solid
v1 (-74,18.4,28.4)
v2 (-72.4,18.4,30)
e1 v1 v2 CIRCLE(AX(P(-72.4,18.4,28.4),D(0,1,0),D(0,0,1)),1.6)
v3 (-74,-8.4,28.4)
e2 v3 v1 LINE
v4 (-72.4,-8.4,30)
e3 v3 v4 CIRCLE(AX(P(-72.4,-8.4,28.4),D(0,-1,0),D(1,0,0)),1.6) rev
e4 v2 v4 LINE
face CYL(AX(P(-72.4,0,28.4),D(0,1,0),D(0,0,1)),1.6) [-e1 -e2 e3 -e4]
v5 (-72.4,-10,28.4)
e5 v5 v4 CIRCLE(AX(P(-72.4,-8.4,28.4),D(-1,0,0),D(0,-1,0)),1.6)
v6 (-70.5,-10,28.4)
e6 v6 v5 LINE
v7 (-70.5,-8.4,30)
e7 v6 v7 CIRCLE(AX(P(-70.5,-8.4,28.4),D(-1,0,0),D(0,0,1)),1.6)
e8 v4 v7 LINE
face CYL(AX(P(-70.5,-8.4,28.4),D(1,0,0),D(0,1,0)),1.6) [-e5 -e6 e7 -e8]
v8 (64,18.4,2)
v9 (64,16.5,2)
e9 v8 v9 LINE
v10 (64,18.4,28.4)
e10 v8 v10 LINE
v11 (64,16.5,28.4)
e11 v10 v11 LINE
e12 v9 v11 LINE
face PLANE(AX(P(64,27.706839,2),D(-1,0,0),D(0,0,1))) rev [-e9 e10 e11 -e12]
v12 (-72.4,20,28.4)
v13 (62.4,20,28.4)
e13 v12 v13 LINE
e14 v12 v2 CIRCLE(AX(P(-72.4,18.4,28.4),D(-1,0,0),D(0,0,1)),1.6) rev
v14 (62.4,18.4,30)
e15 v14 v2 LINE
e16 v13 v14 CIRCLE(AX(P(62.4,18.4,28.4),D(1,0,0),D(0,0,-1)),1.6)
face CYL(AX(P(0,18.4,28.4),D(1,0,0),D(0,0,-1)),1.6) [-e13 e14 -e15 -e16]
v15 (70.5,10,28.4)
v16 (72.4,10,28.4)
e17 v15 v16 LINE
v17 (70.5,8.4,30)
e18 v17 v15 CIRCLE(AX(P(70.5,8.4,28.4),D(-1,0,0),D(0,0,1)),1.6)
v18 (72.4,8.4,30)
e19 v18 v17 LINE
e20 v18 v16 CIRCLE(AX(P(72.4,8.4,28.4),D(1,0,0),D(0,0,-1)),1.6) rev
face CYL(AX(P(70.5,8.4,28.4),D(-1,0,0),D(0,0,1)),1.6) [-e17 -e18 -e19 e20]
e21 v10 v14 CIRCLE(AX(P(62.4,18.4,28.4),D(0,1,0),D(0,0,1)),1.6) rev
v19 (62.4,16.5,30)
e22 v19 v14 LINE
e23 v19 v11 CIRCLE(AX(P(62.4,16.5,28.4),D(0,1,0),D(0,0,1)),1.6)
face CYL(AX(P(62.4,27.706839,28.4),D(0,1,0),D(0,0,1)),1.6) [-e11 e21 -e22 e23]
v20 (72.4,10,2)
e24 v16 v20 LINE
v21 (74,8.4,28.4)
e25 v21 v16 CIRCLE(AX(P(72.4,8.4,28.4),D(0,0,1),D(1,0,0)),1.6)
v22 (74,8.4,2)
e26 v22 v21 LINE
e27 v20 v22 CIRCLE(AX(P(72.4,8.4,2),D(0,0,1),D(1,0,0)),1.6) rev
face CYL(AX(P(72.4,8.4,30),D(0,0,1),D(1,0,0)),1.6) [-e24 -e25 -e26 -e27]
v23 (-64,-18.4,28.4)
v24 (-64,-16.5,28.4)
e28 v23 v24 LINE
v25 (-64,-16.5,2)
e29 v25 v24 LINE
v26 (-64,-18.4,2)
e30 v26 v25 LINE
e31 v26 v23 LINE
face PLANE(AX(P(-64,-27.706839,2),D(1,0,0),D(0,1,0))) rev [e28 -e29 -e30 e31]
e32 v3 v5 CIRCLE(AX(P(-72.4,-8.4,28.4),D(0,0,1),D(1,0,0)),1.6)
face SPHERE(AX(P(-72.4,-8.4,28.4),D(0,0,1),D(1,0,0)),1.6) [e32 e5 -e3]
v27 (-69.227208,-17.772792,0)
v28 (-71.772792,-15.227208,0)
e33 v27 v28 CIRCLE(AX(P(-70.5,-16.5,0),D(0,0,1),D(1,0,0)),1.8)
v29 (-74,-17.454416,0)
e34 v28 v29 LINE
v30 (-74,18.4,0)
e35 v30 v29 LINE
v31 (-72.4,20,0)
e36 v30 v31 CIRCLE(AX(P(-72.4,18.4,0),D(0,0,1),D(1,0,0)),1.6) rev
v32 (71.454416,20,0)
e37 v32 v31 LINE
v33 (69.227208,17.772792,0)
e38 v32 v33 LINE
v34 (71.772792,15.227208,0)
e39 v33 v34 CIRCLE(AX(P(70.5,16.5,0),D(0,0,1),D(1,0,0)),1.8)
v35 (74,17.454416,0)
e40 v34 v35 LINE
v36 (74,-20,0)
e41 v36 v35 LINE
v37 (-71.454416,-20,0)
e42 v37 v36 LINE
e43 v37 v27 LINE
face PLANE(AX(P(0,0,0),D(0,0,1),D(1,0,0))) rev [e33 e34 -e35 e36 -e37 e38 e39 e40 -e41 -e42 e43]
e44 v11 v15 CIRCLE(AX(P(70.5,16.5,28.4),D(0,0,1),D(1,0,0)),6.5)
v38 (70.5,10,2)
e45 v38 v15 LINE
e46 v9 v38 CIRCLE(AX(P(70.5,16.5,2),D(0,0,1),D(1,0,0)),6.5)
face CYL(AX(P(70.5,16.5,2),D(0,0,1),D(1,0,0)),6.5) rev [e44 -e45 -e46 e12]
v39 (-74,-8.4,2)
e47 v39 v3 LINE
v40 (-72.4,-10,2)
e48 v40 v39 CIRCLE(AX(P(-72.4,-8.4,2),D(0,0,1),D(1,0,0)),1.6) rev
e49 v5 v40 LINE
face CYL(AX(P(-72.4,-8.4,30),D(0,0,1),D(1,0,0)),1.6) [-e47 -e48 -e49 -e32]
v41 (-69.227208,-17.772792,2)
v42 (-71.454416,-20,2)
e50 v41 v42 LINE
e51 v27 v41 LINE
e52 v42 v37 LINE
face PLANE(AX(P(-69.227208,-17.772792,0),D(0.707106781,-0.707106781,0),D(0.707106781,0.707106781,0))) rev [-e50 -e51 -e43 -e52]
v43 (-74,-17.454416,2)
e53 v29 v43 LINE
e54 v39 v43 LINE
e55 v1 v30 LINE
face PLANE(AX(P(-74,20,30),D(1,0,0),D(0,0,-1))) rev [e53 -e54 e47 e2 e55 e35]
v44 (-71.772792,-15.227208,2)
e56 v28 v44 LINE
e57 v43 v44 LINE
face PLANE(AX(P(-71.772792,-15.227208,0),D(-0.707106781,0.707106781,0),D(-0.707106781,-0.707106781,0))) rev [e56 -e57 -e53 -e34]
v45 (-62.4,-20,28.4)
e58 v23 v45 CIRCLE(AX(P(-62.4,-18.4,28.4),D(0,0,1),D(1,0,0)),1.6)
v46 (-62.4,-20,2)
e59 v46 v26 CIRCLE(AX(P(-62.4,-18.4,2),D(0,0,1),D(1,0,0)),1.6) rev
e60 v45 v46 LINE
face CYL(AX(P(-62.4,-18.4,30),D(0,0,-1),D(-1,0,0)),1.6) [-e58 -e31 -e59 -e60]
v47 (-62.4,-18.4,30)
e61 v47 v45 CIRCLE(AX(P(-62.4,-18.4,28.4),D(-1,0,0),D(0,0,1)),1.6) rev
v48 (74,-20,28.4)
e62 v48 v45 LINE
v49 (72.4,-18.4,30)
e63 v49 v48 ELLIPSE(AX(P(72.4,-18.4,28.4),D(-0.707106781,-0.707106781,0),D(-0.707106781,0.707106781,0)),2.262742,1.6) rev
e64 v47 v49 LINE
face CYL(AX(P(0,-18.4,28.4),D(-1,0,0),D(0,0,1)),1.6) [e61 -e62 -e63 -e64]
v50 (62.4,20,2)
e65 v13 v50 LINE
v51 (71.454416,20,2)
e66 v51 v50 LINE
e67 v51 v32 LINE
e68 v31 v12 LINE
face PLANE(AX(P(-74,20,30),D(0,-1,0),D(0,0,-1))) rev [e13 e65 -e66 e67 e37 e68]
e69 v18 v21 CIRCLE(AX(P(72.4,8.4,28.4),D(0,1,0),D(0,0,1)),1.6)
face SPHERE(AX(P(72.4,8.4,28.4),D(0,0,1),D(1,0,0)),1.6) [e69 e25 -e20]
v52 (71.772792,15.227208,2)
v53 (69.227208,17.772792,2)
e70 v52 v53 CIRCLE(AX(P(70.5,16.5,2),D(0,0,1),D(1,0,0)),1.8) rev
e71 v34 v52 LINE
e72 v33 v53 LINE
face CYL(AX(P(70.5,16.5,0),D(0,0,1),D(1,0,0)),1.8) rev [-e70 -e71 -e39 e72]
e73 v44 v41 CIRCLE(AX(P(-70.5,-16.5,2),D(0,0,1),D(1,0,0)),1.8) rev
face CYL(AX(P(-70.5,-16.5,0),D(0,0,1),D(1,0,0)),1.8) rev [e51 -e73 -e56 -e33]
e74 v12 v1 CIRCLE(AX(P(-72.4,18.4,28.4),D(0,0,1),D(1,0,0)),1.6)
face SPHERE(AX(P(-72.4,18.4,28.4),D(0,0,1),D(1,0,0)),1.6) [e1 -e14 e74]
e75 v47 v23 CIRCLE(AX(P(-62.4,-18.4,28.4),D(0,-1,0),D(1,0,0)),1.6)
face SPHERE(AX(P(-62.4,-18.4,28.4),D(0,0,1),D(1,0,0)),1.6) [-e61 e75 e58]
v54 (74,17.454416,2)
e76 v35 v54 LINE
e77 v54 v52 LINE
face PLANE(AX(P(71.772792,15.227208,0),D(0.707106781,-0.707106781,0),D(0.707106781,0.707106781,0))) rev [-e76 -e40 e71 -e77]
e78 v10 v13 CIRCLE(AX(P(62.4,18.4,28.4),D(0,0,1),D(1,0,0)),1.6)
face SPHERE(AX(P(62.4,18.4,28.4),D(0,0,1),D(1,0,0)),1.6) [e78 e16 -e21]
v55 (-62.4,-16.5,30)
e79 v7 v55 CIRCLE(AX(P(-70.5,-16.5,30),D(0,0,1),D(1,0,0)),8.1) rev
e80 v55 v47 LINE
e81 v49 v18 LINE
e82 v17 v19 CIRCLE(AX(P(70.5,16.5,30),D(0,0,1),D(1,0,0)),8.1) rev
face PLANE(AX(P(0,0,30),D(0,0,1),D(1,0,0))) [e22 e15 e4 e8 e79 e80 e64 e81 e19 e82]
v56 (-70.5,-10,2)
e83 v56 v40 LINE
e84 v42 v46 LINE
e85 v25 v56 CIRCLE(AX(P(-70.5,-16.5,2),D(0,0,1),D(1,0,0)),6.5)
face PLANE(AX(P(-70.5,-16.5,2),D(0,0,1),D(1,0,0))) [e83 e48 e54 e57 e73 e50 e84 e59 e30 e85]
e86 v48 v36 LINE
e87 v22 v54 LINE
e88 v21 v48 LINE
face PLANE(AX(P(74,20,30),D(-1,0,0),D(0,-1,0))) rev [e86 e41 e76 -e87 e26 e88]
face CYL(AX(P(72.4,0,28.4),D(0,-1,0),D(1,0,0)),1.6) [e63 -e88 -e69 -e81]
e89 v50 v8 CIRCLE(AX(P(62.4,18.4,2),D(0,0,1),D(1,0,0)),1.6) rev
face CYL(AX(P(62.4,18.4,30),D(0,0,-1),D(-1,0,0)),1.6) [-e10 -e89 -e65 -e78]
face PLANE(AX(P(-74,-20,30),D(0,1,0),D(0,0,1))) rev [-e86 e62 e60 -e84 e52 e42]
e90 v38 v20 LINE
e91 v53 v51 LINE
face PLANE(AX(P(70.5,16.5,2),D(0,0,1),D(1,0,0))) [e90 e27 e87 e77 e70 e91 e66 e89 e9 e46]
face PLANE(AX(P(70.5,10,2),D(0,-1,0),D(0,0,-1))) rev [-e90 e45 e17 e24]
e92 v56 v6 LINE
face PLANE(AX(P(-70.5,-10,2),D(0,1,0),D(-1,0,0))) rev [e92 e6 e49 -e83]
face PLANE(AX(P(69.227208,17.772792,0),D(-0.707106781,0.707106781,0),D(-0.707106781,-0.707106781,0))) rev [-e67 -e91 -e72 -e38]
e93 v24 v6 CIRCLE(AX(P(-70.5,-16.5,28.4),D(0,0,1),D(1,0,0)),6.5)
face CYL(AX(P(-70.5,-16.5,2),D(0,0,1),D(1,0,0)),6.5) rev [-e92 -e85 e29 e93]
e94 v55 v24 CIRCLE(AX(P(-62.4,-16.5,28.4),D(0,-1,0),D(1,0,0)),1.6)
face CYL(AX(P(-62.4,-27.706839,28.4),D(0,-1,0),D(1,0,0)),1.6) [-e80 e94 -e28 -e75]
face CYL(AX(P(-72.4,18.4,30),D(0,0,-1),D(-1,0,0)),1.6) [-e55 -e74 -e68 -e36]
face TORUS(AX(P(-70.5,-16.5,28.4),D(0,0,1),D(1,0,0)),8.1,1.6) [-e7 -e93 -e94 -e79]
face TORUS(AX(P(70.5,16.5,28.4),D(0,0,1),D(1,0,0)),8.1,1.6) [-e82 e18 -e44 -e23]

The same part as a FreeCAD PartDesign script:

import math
import FreeCAD as App
import Part
import Sketcher
Q = App.Units.Quantity


def edges_at(feature, points):
    """Names of the edges that pass closest to the given points."""
    edges = feature.Shape.Edges
    near = lambda p: min(range(len(edges)), key=lambda i: edges[i].distToShape(Part.Vertex(*p))[0])
    return sorted({f"Edge{near(p) + 1}" for p in points})

doc = App.newDocument("Part")
body = doc.addObject("PartDesign::Body", "Body")

sketch1 = doc.addObject("Sketcher::SketchObject", "Sketch")
body.addObject(sketch1)
sketch1.AttachmentSupport = (doc.XY_Plane, [""])
sketch1.MapMode = "FlatFace"
sketch1.addGeometry([
    Part.LineSegment(App.Vector(-74, 20, 0), App.Vector(-74, -20, 0)),
    Part.LineSegment(App.Vector(-74, -20, 0), App.Vector(74, -20, 0)),
    Part.LineSegment(App.Vector(74, -20, 0), App.Vector(74, 20, 0)),
    Part.LineSegment(App.Vector(74, 20, 0), App.Vector(-74, 20, 0)),
], False)
sketch1.addConstraint([
    Sketcher.Constraint("Coincident", 0, 2, 1, 1),
    Sketcher.Constraint("Coincident", 1, 2, 2, 1),
    Sketcher.Constraint("Coincident", 2, 2, 3, 1),
    Sketcher.Constraint("Coincident", 3, 2, 0, 1),
    Sketcher.Constraint("Vertical", 0),
    Sketcher.Constraint("Horizontal", 1),
    Sketcher.Constraint("Vertical", 2),
    Sketcher.Constraint("Horizontal", 3),
    Sketcher.Constraint("Symmetric", 0, 2, 2, 2, -1, 1),
    Sketcher.Constraint("DistanceX", 1, 1, 1, 2, Q("148 mm")),
    Sketcher.Constraint("DistanceY", 0, 2, 0, 1, Q("40 mm")),
])
pad1 = doc.addObject("PartDesign::Pad", "Pad")
body.addObject(pad1)
pad1.Profile = sketch1
pad1.Length = 30

sketch2 = doc.addObject("Sketcher::SketchObject", "Sketch001")
body.addObject(sketch2)
sketch2.AttachmentSupport = (doc.XY_Plane, [""])
sketch2.MapMode = "FlatFace"
sketch2.AttachmentOffset = App.Placement(App.Vector(0, 0, 30), App.Rotation())
sketch2.addGeometry([
    Part.LineSegment(App.Vector(73.727238, 22.272822, 0), App.Vector(69.227208, 17.772792, 0)),
    Part.ArcOfCircle(Part.Circle(App.Vector(70.5, 16.5, 0), App.Vector(0, 0, 1), 1.8), math.radians(135), math.radians(315)),
    Part.LineSegment(App.Vector(71.772792, 15.227208, 0), App.Vector(76.272822, 19.727238, 0)),
    Part.LineSegment(App.Vector(76.272822, 19.727238, 0), App.Vector(73.727238, 22.272822, 0)),
    Part.LineSegment(App.Vector(-73.727238, -22.272822, 0), App.Vector(-69.227208, -17.772792, 0)),
    Part.ArcOfCircle(Part.Circle(App.Vector(-70.5, -16.5, 0), App.Vector(0, 0, 1), 1.8), math.radians(-45), math.radians(135)),
    Part.LineSegment(App.Vector(-71.772792, -15.227208, 0), App.Vector(-76.272822, -19.727238, 0)),
    Part.LineSegment(App.Vector(-76.272822, -19.727238, 0), App.Vector(-73.727238, -22.272822, 0)),
], False)
sketch2.addConstraint([
    Sketcher.Constraint("Tangent", 0, 2, 1, 1),
    Sketcher.Constraint("Tangent", 1, 2, 2, 1),
    Sketcher.Constraint("Coincident", 2, 2, 3, 1),
    Sketcher.Constraint("Coincident", 3, 2, 0, 1),
    Sketcher.Constraint("Tangent", 4, 2, 5, 1),
    Sketcher.Constraint("Tangent", 5, 2, 6, 1),
    Sketcher.Constraint("Coincident", 6, 2, 7, 1),
    Sketcher.Constraint("Coincident", 7, 2, 4, 1),
    Sketcher.Constraint("Equal", 1, 5),
    Sketcher.Constraint("Symmetric", 1, 3, 5, 3, -1, 1),
    Sketcher.Constraint("Symmetric", 2, 2, 6, 2, -1, 1),
    Sketcher.Constraint("Symmetric", 3, 2, 7, 2, -1, 1),
    Sketcher.Constraint("Parallel", 0, 2),
    Sketcher.Constraint("Perpendicular", 2, 3),
    Sketcher.Constraint("Radius", 1, Q("1.8 mm")),
    Sketcher.Constraint("Angle", 0, Q("-135 deg")),
    Sketcher.Constraint("DistanceX", 5, 3, 1, 3, Q("141 mm")),
    Sketcher.Constraint("DistanceY", 5, 3, 1, 3, Q("33 mm")),
    Sketcher.Constraint("DistanceY", -1, 1, 2, 2, Q("19.727238 mm")),
])
pocket1 = doc.addObject("PartDesign::Pocket", "Pocket")
body.addObject(pocket1)
pocket1.Profile = sketch2
pocket1.Length = 30

sketch3 = doc.addObject("Sketcher::SketchObject", "Sketch002")
body.addObject(sketch3)
sketch3.AttachmentSupport = (doc.XY_Plane, [""])
sketch3.MapMode = "FlatFace"
sketch3.AttachmentOffset = App.Placement(App.Vector(0, 0, 30), App.Rotation())
sketch3.addGeometry([
    Part.LineSegment(App.Vector(64, 27.706839, 0), App.Vector(64, 16.5, 0)),
    Part.ArcOfCircle(Part.Circle(App.Vector(70.5, 16.5, 0), App.Vector(0, 0, 1), 6.5), math.radians(180), math.radians(270)),
    Part.LineSegment(App.Vector(70.5, 10, 0), App.Vector(82.036432, 10, 0)),
    Part.LineSegment(App.Vector(82.036432, 10, 0), App.Vector(64, 27.706839, 0)),
    Part.LineSegment(App.Vector(-64, -27.706839, 0), App.Vector(-64, -16.5, 0)),
    Part.ArcOfCircle(Part.Circle(App.Vector(-70.5, -16.5, 0), App.Vector(0, 0, 1), 6.5), math.radians(0), math.radians(90)),
    Part.LineSegment(App.Vector(-70.5, -10, 0), App.Vector(-82.036432, -10, 0)),
    Part.LineSegment(App.Vector(-82.036432, -10, 0), App.Vector(-64, -27.706839, 0)),
], False)
sketch3.addConstraint([
    Sketcher.Constraint("Tangent", 0, 2, 1, 1),
    Sketcher.Constraint("Tangent", 1, 2, 2, 1),
    Sketcher.Constraint("Coincident", 2, 2, 3, 1),
    Sketcher.Constraint("Coincident", 3, 2, 0, 1),
    Sketcher.Constraint("Tangent", 4, 2, 5, 1),
    Sketcher.Constraint("Tangent", 5, 2, 6, 1),
    Sketcher.Constraint("Coincident", 6, 2, 7, 1),
    Sketcher.Constraint("Coincident", 7, 2, 4, 1),
    Sketcher.Constraint("Vertical", 0),
    Sketcher.Constraint("Horizontal", 2),
    Sketcher.Constraint("Vertical", 4),
    Sketcher.Constraint("Horizontal", 6),
    Sketcher.Constraint("Equal", 1, 5),
    Sketcher.Constraint("Symmetric", 1, 3, 5, 3, -1, 1),
    Sketcher.Constraint("Parallel", 3, 7),
    Sketcher.Constraint("Equal", 2, 6),
    Sketcher.Constraint("Radius", 1, Q("6.5 mm")),
    Sketcher.Constraint("DistanceX", -1, 1, 0, 2, Q("64 mm")),
    Sketcher.Constraint("DistanceY", -1, 1, 1, 2, Q("10 mm")),
    Sketcher.Constraint("DistanceX", 2, 1, 2, 2, Q("11.536432 mm")),
    Sketcher.Constraint("DistanceY", 0, 2, 0, 1, Q("11.206839 mm")),
])
pocket2 = doc.addObject("PartDesign::Pocket", "Pocket001")
body.addObject(pocket2)
pocket2.Profile = sketch3
pocket2.Length = 28
doc.recompute()

fillet = doc.addObject("PartDesign::Fillet", "Fillet")
body.addObject(fillet)
fillet.Base = (pocket2, edges_at(pocket2, [
    (-74, 5, 30),
    (74, -5, 30),
    (-5, 20, 30),
    (74, 10, 16),
    (64, 20, 16),
    (72.25, 10, 30),
    (64, 18.25, 30),
    (65.904, 11.904, 30),
    (-74, 20, 15),
    (5, -20, 30),
    (-74, -10, 16),
    (-64, -20, 16),
    (-72.25, -10, 30),
    (-64, -18.25, 30),
    (-65.904, -11.904, 30),
]))
fillet.Radius = 1.6

doc.recompute()
